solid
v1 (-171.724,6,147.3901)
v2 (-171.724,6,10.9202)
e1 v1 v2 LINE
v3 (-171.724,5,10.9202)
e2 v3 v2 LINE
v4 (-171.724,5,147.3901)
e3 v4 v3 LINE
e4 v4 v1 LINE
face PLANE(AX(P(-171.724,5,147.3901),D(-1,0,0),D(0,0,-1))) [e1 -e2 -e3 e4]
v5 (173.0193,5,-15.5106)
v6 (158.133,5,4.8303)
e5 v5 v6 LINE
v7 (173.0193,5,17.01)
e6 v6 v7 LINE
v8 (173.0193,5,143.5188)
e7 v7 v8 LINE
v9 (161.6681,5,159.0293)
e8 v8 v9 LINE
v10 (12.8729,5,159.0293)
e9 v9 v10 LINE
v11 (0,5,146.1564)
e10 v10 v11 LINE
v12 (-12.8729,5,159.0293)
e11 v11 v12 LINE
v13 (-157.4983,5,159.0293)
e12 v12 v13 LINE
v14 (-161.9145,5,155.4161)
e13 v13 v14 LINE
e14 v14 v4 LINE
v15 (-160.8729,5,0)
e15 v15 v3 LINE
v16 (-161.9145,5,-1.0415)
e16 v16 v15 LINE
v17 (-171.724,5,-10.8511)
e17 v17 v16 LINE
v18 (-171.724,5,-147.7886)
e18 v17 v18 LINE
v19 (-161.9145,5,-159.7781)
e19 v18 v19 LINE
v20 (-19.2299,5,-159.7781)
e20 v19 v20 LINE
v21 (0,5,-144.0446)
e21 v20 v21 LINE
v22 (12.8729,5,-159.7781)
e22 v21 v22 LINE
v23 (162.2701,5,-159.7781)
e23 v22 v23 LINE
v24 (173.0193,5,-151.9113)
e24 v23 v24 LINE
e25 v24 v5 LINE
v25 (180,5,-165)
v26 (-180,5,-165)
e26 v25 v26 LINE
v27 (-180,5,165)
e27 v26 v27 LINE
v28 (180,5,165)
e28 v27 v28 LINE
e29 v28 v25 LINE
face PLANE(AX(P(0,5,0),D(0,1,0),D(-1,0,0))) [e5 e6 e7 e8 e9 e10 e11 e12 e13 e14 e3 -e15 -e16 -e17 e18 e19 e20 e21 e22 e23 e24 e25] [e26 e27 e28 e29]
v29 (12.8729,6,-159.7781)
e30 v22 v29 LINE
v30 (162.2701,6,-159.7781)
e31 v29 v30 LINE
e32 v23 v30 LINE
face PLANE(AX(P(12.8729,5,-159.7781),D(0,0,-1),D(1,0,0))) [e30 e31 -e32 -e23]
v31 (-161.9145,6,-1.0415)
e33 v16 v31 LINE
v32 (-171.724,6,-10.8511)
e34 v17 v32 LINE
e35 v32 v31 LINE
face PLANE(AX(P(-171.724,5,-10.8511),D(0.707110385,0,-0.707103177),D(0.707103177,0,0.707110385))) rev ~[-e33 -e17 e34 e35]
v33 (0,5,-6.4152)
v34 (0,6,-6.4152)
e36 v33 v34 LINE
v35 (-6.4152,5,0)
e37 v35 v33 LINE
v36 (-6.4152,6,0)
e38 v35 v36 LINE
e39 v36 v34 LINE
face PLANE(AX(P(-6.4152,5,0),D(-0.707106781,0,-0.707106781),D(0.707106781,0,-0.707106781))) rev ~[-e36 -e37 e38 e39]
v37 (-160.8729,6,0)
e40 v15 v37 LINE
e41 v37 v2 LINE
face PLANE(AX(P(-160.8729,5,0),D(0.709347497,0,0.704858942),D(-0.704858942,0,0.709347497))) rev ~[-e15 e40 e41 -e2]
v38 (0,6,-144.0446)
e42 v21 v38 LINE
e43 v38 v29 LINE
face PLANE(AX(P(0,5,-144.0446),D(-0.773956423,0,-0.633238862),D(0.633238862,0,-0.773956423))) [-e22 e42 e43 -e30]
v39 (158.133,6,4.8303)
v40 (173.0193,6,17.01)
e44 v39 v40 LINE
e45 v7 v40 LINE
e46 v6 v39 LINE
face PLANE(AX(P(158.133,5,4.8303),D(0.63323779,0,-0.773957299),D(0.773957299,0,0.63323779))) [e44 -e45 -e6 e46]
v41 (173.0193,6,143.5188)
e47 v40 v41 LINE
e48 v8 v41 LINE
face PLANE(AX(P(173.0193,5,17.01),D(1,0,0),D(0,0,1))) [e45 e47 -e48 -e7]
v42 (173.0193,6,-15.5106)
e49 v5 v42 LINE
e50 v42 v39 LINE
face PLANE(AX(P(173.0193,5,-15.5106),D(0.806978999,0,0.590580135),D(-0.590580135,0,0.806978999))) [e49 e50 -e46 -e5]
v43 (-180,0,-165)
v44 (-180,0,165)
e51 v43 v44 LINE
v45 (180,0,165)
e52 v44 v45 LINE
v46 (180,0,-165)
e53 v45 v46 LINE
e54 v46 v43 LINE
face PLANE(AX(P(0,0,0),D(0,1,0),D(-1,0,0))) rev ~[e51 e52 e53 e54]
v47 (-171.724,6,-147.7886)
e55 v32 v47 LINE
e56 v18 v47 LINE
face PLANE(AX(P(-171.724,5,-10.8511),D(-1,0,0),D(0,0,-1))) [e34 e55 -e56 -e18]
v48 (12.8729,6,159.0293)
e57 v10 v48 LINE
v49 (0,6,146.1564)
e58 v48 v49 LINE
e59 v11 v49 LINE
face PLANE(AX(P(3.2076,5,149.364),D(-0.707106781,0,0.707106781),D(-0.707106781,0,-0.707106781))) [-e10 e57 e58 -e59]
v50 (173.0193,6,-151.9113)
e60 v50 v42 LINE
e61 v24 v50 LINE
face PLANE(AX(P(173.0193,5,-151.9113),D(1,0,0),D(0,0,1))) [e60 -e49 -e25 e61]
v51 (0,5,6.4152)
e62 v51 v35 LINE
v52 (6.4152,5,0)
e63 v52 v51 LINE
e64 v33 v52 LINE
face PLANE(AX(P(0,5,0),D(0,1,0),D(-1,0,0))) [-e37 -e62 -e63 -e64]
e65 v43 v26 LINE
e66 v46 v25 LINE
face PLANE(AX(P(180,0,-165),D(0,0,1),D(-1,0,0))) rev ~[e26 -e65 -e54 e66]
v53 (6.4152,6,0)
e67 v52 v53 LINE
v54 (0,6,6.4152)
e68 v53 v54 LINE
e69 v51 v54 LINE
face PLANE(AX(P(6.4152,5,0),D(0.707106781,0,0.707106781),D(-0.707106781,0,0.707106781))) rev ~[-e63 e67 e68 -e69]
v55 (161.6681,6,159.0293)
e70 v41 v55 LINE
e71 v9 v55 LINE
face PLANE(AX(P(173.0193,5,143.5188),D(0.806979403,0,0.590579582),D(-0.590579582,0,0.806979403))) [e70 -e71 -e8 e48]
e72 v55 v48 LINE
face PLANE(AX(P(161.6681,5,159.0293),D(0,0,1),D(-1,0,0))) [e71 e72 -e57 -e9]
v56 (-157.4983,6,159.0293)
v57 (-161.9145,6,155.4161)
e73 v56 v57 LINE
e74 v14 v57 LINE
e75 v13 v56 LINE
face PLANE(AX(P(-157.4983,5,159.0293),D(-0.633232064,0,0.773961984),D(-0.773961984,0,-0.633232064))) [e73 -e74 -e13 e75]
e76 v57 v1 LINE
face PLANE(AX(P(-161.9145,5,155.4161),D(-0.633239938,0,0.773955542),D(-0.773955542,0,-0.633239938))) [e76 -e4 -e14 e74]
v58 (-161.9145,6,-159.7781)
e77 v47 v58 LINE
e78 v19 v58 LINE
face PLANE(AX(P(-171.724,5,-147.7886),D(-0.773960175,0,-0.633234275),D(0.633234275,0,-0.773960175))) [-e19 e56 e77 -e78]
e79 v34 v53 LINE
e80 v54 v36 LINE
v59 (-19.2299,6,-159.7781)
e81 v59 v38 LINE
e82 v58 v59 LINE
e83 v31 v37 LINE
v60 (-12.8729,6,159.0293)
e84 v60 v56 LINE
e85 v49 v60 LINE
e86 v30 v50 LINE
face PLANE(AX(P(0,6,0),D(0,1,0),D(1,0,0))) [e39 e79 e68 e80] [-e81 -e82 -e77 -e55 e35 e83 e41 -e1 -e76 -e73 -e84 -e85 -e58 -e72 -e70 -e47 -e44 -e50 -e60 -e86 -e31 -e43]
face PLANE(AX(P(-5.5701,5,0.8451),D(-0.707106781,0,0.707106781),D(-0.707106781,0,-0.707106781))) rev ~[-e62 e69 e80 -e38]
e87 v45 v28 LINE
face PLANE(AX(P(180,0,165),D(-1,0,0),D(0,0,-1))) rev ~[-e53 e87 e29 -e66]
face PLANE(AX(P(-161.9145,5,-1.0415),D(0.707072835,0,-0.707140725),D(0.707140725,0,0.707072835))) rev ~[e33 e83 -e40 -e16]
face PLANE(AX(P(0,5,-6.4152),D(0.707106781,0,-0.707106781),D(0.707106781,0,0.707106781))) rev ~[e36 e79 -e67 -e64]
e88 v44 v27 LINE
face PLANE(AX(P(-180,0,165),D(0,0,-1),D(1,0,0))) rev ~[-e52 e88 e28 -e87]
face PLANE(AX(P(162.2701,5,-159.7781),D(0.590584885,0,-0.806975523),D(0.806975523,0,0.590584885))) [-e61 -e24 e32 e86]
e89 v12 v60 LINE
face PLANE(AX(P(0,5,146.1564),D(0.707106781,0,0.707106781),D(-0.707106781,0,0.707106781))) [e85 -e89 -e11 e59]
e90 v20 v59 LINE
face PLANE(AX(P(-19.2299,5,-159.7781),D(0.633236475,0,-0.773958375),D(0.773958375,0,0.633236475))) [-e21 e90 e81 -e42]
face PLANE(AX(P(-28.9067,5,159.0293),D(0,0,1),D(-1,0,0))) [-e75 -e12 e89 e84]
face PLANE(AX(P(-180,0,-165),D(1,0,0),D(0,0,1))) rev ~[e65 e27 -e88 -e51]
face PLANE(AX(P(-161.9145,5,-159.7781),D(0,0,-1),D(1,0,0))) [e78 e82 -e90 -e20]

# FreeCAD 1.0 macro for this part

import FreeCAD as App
import Part
import Sketcher
Q = App.Units.Quantity

doc = App.newDocument("Part")
body = doc.addObject("PartDesign::Body", "Body")

# Sketch on XZ plane
sketch1 = body.newObject("Sketcher::SketchObject", "Sketch")
sketch1.AttachmentSupport = (doc.getObject("XZ_Plane"), [""])
sketch1.MapMode = "FlatFace"
sketch1.addGeometry([
    Part.LineSegment(App.Vector(-180, -165, 0), App.Vector(-180, 165, 0)),
    Part.LineSegment(App.Vector(-180, 165, 0), App.Vector(180, 165, 0)),
    Part.LineSegment(App.Vector(180, 165, 0), App.Vector(180, -165, 0)),
    Part.LineSegment(App.Vector(180, -165, 0), App.Vector(-180, -165, 0)),
], False)
sketch1.addConstraint([
    Sketcher.Constraint("Coincident", 0, 2, 1, 1),
    Sketcher.Constraint("Coincident", 1, 2, 2, 1),
    Sketcher.Constraint("Coincident", 2, 2, 3, 1),
    Sketcher.Constraint("Coincident", 3, 2, 0, 1),
    Sketcher.Constraint("Vertical", 0),
    Sketcher.Constraint("Horizontal", 1),
    Sketcher.Constraint("Vertical", 2),
    Sketcher.Constraint("Horizontal", 3),
    Sketcher.Constraint("Symmetric", 0, 2, 2, 2, -1, 1),
    Sketcher.Constraint("DistanceX", 1, 1, 1, 2, Q("360 mm")),
    Sketcher.Constraint("DistanceY", 0, 1, 0, 2, Q("330 mm")),
])
pad1 = body.newObject("PartDesign::Pad", "Pad")
pad1.Profile = sketch1
pad1.Length = 5
pad1.Reversed = True

# Sketch on XZ plane
sketch2 = body.newObject("Sketcher::SketchObject", "Sketch001")
sketch2.AttachmentSupport = (doc.getObject("XZ_Plane"), [""])
sketch2.MapMode = "FlatFace"
sketch2.AttachmentOffset = App.Placement(App.Vector(0, 0, -5), App.Rotation())
sketch2.addGeometry([
    Part.LineSegment(App.Vector(-171.7, 147.4, 0), App.Vector(-161.9, 155.4, 0)),  # 0
    Part.LineSegment(App.Vector(-161.9, 155.4, 0), App.Vector(-157.5, 159, 0)),  # 1
    Part.LineSegment(App.Vector(-157.5, 159, 0), App.Vector(-12.9, 159, 0)),  # 2
    Part.LineSegment(App.Vector(-12.9, 159, 0), App.Vector(0, 146.2, 0)),  # 3
    Part.LineSegment(App.Vector(0, 146.2, 0), App.Vector(12.9, 159, 0)),  # 4
    Part.LineSegment(App.Vector(12.9, 159, 0), App.Vector(161.7, 159, 0)),  # 5
    Part.LineSegment(App.Vector(161.7, 159, 0), App.Vector(173, 143.5, 0)),  # 6
    Part.LineSegment(App.Vector(173, 143.5, 0), App.Vector(173, 17, 0)),  # 7
    Part.LineSegment(App.Vector(173, 17, 0), App.Vector(158.1, 4.8, 0)),  # 8
    Part.LineSegment(App.Vector(158.1, 4.8, 0), App.Vector(173, -15.5, 0)),  # 9
    Part.LineSegment(App.Vector(173, -15.5, 0), App.Vector(173, -151.9, 0)),  # 10
    Part.LineSegment(App.Vector(173, -151.9, 0), App.Vector(162.3, -159.8, 0)),  # 11
    Part.LineSegment(App.Vector(162.3, -159.8, 0), App.Vector(12.9, -159.8, 0)),  # 12
    Part.LineSegment(App.Vector(12.9, -159.8, 0), App.Vector(0, -144, 0)),  # 13
    Part.LineSegment(App.Vector(0, -144, 0), App.Vector(-19.2, -159.8, 0)),  # 14
    Part.LineSegment(App.Vector(-19.2, -159.8, 0), App.Vector(-161.9, -159.8, 0)),  # 15
    Part.LineSegment(App.Vector(-161.9, -159.8, 0), App.Vector(-171.7, -147.8, 0)),  # 16
    Part.LineSegment(App.Vector(-171.7, -147.8, 0), App.Vector(-171.7, -10.9, 0)),  # 17
    Part.LineSegment(App.Vector(-171.7, -10.9, 0), App.Vector(-161.9, -1, 0)),  # 18
    Part.LineSegment(App.Vector(-161.9, -1, 0), App.Vector(-160.9, 0, 0)),  # 19
    Part.LineSegment(App.Vector(-160.9, 0, 0), App.Vector(-171.7, 10.9, 0)),  # 20
    Part.LineSegment(App.Vector(-171.7, 10.9, 0), App.Vector(-171.7, 147.4, 0)),  # 21
    Part.LineSegment(App.Vector(6.4, 0, 0), App.Vector(0, 6.4, 0)),  # 22
    Part.LineSegment(App.Vector(0, 6.4, 0), App.Vector(-6.4, 0, 0)),  # 23
    Part.LineSegment(App.Vector(-6.4, 0, 0), App.Vector(0, -6.4, 0)),  # 24
    Part.LineSegment(App.Vector(0, -6.4, 0), App.Vector(6.4, 0, 0)),  # 25
], False)
sketch2.addConstraint([
    Sketcher.Constraint("Coincident", 0, 2, 1, 1),
    Sketcher.Constraint("Coincident", 1, 2, 2, 1),
    Sketcher.Constraint("Coincident", 2, 2, 3, 1),
    Sketcher.Constraint("Coincident", 3, 2, 4, 1),
    Sketcher.Constraint("Coincident", 4, 2, 5, 1),
    Sketcher.Constraint("Coincident", 5, 2, 6, 1),
    Sketcher.Constraint("Coincident", 6, 2, 7, 1),
    Sketcher.Constraint("Coincident", 7, 2, 8, 1),
    Sketcher.Constraint("Coincident", 8, 2, 9, 1),
    Sketcher.Constraint("Coincident", 9, 2, 10, 1),
    Sketcher.Constraint("Coincident", 10, 2, 11, 1),
    Sketcher.Constraint("Coincident", 11, 2, 12, 1),
    Sketcher.Constraint("Coincident", 12, 2, 13, 1),
    Sketcher.Constraint("Coincident", 13, 2, 14, 1),
    Sketcher.Constraint("Coincident", 14, 2, 15, 1),
    Sketcher.Constraint("Coincident", 15, 2, 16, 1),
    Sketcher.Constraint("Coincident", 16, 2, 17, 1),
    Sketcher.Constraint("Coincident", 17, 2, 18, 1),
    Sketcher.Constraint("Coincident", 18, 2, 19, 1),
    Sketcher.Constraint("Coincident", 19, 2, 20, 1),
    Sketcher.Constraint("Coincident", 20, 2, 21, 1),
    Sketcher.Constraint("Coincident", 21, 2, 0, 1),
    Sketcher.Constraint("Coincident", 22, 2, 23, 1),
    Sketcher.Constraint("Coincident", 23, 2, 24, 1),
    Sketcher.Constraint("Coincident", 24, 2, 25, 1),
    Sketcher.Constraint("Coincident", 25, 2, 22, 1),
    Sketcher.Constraint("Horizontal", 2),
    Sketcher.Constraint("Horizontal", 5),
    Sketcher.Constraint("Vertical", 7),
    Sketcher.Constraint("Vertical", 10),
    Sketcher.Constraint("Horizontal", 12),
    Sketcher.Constraint("Horizontal", 15),
    Sketcher.Constraint("Vertical", 17),
    Sketcher.Constraint("Vertical", 21),
    Sketcher.Constraint("Symmetric", 22, 2, 24, 2, -1, 1),
    Sketcher.Constraint("Symmetric", 23, 2, 25, 2, -1, 1),
    Sketcher.Constraint("Symmetric", 2, 2, 4, 2, -2),
    Sketcher.Constraint("PointOnObject", 3, 2, -2),
    Sketcher.Constraint("PointOnObject", 13, 2, -2),
    Sketcher.Constraint("PointOnObject", 19, 2, -1),
    Sketcher.Constraint("PointOnObject", 22, 2, -2),
    Sketcher.Constraint("PointOnObject", 23, 2, -1),
    Sketcher.Constraint("Parallel", 0, 1),
    Sketcher.Constraint("Perpendicular", 3, 4),
    Sketcher.Constraint("Parallel", 1, 8),
    Sketcher.Constraint("Parallel", 6, 9),
    Sketcher.Constraint("Perpendicular", 9, 11),
    Sketcher.Constraint("Perpendicular", 8, 13),
    Sketcher.Constraint("Perpendicular", 13, 14),
    Sketcher.Constraint("Perpendicular", 14, 16),
    Sketcher.Constraint("Parallel", 4, 18),
    Sketcher.Constraint("Parallel", 18, 19),
    Sketcher.Constraint("Perpendicular", 19, 22),
    Sketcher.Constraint("Horizontal", 12, 2, 14, 2),
    Sketcher.Constraint("Vertical", 7, 2, 9, 2),
    Sketcher.Constraint("Vertical", 4, 2, 12, 2),
    Sketcher.Constraint("Vertical", 0, 2, 15, 2),
    Sketcher.Constraint("Vertical", 15, 2, 18, 2),
    Sketcher.Constraint("Vertical", 17, 2, 20, 2),
    Sketcher.Constraint("DistanceY", 21, 1, 21, 2, Q("136.47 mm")),
    Sketcher.Constraint("Angle", 0, Q("39.2896 deg")),
    Sketcher.Constraint("DistanceX", 14, 2, 11, 2, Q("181.5 mm")),
    Sketcher.Constraint("DistanceY", -1, 1, 7, 2, Q("17.01 mm")),
    Sketcher.Constraint("DistanceX", -1, 1, 11, 2, Q("162.27 mm")),
    Sketcher.Constraint("DistanceY", -1, 1, 21, 2, Q("147.39 mm")),
    Sketcher.Constraint("DistanceX", 4, 2, 8, 2, Q("145.26 mm")),
    Sketcher.Constraint("DistanceY", 9, 2, 5, 2, Q("174.54 mm")),
    Sketcher.Constraint("DistanceY", 10, 2, 6, 2, Q("295.43 mm")),
    Sketcher.Constraint("Distance", 1, Q("5.706 mm")),
    Sketcher.Constraint("Distance", 8, Q("19.234 mm")),
    Sketcher.Constraint("Distance", 16, Q("15.491 mm")),
    Sketcher.Constraint("Distance", 19, Q("1.473 mm")),
    Sketcher.Constraint("DistanceX", 2, 1, 2, 2, Q("144.6254 mm")),
    Sketcher.Constraint("DistanceX", 5, 1, 5, 2, Q("148.7952 mm")),
    Sketcher.Constraint("DistanceY", 22, 2, 2, 2, Q("152.614 mm")),
])
pad2 = body.newObject("PartDesign::Pad", "Pad001")
pad2.Profile = sketch2
pad2.Length = 1
pad2.Reversed = True

doc.recompute()
